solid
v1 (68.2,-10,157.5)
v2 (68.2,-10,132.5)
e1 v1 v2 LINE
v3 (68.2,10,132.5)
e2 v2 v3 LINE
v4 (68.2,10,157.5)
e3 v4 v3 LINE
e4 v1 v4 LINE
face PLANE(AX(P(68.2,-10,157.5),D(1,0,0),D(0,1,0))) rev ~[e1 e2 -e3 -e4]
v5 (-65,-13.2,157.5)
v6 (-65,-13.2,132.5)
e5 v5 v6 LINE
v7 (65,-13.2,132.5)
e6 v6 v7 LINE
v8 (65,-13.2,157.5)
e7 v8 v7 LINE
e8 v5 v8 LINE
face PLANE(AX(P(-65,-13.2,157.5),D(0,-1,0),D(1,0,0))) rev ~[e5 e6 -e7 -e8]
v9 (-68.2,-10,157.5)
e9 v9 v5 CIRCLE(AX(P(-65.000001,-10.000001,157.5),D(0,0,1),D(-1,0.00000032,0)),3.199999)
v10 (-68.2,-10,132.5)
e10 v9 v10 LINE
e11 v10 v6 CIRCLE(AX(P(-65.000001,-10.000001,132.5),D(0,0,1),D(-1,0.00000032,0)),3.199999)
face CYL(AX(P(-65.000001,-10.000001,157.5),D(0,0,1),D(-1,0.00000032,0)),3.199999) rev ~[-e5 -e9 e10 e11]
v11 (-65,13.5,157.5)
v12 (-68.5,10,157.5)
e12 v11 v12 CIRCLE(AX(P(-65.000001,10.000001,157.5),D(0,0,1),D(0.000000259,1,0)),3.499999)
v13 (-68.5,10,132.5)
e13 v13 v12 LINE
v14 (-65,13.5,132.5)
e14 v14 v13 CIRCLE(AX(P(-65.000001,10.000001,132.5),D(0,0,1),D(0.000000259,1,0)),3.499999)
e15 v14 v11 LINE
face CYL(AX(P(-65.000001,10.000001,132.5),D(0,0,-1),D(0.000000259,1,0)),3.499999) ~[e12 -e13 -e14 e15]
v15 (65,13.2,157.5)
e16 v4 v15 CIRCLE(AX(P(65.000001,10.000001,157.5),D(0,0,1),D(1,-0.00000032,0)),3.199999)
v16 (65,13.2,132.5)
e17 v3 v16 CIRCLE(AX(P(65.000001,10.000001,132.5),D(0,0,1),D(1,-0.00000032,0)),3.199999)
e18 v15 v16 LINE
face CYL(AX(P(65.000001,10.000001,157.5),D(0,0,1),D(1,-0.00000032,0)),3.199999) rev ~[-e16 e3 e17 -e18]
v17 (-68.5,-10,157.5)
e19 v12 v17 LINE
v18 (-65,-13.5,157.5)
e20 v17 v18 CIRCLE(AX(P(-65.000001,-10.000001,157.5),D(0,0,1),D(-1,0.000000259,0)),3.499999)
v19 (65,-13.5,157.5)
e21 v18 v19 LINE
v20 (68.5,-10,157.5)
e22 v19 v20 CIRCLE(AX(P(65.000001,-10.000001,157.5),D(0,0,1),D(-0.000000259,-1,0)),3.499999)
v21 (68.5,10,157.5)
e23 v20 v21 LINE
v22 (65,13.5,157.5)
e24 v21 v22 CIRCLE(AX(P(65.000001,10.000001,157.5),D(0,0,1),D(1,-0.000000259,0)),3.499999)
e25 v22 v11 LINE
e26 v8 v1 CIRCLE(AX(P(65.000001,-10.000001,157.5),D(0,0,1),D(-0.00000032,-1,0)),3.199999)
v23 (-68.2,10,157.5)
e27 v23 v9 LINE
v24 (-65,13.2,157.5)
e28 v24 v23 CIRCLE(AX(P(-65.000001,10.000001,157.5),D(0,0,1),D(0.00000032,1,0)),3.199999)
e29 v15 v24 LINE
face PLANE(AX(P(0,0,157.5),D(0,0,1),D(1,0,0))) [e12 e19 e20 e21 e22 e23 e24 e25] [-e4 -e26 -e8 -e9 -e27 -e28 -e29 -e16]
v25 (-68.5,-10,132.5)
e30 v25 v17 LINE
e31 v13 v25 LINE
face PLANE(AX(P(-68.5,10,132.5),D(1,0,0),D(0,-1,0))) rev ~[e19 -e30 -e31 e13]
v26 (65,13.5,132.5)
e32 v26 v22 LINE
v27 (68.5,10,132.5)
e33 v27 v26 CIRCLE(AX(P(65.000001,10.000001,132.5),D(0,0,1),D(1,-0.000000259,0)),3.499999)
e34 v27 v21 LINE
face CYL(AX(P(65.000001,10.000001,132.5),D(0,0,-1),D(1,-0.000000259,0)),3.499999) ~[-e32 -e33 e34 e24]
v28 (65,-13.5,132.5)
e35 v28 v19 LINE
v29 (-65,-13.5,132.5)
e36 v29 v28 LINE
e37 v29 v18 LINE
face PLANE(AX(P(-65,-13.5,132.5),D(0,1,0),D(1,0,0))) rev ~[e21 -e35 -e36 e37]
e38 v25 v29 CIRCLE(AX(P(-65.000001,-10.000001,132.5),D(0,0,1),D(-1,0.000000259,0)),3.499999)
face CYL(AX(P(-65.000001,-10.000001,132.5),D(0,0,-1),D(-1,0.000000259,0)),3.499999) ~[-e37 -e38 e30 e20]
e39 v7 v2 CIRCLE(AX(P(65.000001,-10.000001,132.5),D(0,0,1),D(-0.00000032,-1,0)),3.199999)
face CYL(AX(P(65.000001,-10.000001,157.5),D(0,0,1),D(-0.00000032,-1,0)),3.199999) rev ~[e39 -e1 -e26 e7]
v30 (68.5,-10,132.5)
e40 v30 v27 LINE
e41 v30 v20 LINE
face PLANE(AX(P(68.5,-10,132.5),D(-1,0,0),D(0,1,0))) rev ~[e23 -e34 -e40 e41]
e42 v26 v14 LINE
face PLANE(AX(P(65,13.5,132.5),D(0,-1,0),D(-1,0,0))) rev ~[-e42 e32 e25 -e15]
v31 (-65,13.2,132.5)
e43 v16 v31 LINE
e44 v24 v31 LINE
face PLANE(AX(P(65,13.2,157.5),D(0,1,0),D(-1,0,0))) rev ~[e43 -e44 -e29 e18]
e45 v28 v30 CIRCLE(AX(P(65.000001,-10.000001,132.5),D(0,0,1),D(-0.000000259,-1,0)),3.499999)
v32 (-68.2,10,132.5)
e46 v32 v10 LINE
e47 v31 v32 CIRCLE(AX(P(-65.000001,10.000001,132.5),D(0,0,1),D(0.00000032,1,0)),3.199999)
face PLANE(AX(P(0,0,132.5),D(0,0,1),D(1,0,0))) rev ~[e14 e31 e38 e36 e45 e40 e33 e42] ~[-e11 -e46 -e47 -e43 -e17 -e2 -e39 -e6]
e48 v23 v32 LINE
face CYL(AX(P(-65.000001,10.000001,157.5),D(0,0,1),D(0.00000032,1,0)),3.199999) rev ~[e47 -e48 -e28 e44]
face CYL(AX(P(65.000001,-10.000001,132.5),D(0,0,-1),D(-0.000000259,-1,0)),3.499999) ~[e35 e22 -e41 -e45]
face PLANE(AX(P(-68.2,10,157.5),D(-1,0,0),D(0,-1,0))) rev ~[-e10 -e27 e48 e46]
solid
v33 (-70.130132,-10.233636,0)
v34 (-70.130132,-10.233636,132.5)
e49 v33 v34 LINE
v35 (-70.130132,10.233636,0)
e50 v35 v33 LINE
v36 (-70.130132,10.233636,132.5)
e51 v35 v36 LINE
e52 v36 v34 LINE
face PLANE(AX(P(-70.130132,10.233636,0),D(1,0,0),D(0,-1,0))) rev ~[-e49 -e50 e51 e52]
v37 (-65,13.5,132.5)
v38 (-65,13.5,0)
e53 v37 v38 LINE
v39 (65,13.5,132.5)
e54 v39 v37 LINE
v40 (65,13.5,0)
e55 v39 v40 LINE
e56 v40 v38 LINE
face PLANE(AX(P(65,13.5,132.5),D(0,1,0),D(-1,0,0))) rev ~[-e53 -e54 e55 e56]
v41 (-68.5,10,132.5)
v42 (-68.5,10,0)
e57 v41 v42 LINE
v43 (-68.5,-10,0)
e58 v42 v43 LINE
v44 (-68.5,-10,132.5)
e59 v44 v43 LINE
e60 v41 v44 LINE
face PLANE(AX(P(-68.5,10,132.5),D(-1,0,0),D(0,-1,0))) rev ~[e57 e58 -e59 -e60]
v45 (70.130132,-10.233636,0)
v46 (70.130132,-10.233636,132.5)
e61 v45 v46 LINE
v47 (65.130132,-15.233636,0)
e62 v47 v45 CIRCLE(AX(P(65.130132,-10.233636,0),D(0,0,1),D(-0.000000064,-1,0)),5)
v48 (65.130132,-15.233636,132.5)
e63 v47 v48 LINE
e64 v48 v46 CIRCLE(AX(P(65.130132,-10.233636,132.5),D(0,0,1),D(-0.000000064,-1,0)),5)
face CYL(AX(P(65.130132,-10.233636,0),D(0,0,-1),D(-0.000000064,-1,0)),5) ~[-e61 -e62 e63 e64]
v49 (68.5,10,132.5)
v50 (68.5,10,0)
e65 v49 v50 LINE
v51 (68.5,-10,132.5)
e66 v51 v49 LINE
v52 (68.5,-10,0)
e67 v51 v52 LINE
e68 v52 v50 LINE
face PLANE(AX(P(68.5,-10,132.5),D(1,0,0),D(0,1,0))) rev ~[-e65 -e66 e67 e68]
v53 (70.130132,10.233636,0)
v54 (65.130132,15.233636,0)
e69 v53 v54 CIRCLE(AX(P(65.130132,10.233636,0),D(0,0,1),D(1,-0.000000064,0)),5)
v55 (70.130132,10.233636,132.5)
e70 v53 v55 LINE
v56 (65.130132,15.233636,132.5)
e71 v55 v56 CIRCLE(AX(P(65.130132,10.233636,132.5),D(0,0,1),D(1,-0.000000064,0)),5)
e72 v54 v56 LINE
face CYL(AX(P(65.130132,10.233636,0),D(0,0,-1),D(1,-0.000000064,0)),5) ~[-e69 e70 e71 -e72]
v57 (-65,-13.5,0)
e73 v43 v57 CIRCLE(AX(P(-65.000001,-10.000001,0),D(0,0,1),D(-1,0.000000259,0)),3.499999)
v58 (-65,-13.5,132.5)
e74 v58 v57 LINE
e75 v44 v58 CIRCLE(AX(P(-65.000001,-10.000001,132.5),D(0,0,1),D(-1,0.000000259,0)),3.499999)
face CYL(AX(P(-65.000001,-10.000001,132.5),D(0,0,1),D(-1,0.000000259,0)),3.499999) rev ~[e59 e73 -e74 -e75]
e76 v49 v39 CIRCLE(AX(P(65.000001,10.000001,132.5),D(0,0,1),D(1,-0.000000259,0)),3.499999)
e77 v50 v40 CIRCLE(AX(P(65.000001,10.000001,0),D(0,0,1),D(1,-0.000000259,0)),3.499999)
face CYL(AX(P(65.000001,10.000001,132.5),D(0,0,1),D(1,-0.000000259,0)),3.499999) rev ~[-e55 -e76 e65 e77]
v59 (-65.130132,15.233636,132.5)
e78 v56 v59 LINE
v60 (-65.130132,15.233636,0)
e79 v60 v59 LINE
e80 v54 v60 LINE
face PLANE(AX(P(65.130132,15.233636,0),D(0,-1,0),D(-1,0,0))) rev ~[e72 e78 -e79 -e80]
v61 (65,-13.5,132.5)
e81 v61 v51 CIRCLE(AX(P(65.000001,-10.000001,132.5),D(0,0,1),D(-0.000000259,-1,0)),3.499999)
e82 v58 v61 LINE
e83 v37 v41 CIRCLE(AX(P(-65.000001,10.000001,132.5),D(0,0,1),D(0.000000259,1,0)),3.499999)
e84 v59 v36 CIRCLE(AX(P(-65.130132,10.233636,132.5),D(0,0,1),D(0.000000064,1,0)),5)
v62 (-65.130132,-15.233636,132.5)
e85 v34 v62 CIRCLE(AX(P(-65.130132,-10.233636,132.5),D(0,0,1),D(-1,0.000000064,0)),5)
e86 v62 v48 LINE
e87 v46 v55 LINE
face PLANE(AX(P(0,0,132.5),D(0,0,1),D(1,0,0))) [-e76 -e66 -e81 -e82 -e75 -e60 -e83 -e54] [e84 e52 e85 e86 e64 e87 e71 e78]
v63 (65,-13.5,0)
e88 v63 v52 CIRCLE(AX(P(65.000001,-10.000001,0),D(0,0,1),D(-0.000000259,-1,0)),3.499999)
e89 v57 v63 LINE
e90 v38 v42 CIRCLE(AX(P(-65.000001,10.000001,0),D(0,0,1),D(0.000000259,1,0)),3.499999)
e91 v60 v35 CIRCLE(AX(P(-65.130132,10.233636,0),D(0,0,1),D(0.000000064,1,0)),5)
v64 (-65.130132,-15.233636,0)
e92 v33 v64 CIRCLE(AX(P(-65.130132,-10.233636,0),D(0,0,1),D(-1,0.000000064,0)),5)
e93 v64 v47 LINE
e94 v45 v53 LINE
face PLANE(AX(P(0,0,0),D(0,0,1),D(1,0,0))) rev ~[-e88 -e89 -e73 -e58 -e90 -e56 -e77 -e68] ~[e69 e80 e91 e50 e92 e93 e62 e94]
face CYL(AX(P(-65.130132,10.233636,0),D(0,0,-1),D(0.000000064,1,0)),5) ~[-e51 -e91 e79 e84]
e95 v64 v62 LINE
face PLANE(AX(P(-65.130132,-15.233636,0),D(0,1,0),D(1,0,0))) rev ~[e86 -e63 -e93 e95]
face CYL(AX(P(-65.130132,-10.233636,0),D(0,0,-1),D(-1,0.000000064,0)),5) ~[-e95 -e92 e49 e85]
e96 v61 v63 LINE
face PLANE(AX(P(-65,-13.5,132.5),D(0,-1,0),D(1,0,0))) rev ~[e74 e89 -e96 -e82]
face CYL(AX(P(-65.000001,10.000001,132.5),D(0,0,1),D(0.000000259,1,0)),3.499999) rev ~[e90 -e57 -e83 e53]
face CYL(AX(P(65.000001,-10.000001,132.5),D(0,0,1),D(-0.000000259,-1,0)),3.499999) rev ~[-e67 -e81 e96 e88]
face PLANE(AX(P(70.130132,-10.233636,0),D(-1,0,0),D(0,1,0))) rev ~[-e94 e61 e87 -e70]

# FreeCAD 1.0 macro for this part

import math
import FreeCAD as App
import Part
import Sketcher

doc = App.newDocument("Part")
body = doc.addObject("PartDesign::Body", "Body")

# Sketch on XY plane
sketch1 = doc.addObject("Sketcher::SketchObject", "Sketch")
body.addObject(sketch1)
sketch1.AttachmentSupport = (doc.XY_Plane, [""])
sketch1.MapMode = "FlatFace"
sketch1.addGeometry(Part.ArcOfCircle(Part.Circle(App.Vector(65.130132, 10.233636, 0), App.Vector(0, 0, 1), 5), math.radians(-0.000004), math.radians(90.000004)), False)
sketch1.addGeometry(Part.LineSegment(App.Vector(65.130132, 15.233636, 0), App.Vector(-65.130132, 15.233636, 0)), False)
sketch1.addGeometry(Part.ArcOfCircle(Part.Circle(App.Vector(-65.130132, 10.233636, 0), App.Vector(0, 0, 1), 5), math.radians(89.999996), math.radians(180.000004)), False)
sketch1.addGeometry(Part.LineSegment(App.Vector(-70.130132, 10.233636, 0), App.Vector(-70.130132, -10.233636, 0)), False)
sketch1.addGeometry(Part.ArcOfCircle(Part.Circle(App.Vector(-65.130132, -10.233636, 0), App.Vector(0, 0, 1), 5), math.radians(179.999996), math.radians(270.000004)), False)
sketch1.addGeometry(Part.LineSegment(App.Vector(-65.130132, -15.233636, 0), App.Vector(65.130132, -15.233636, 0)), False)
sketch1.addGeometry(Part.ArcOfCircle(Part.Circle(App.Vector(65.130132, -10.233636, 0), App.Vector(0, 0, 1), 5), math.radians(-90.000004), math.radians(0.000004)), False)
sketch1.addGeometry(Part.LineSegment(App.Vector(70.130132, -10.233636, 0), App.Vector(70.130132, 10.233636, 0)), False)
sketch1.addConstraint(Sketcher.Constraint("Tangent", 0, 2, 1, 1))
sketch1.addConstraint(Sketcher.Constraint("Tangent", 1, 2, 2, 1))
sketch1.addConstraint(Sketcher.Constraint("Tangent", 2, 2, 3, 1))
sketch1.addConstraint(Sketcher.Constraint("Tangent", 3, 2, 4, 1))
sketch1.addConstraint(Sketcher.Constraint("Tangent", 4, 2, 5, 1))
sketch1.addConstraint(Sketcher.Constraint("Tangent", 5, 2, 6, 1))
sketch1.addConstraint(Sketcher.Constraint("Tangent", 6, 2, 7, 1))
sketch1.addConstraint(Sketcher.Constraint("Tangent", 7, 2, 0, 1))
sketch1.addConstraint(Sketcher.Constraint("Horizontal", 1))
sketch1.addConstraint(Sketcher.Constraint("Vertical", 3))
sketch1.addConstraint(Sketcher.Constraint("Horizontal", 5))
sketch1.addConstraint(Sketcher.Constraint("Vertical", 7))
sketch1.addConstraint(Sketcher.Constraint("Equal", 0, 2))
sketch1.addConstraint(Sketcher.Constraint("Equal", 2, 4))
sketch1.addConstraint(Sketcher.Constraint("Equal", 4, 6))
sketch1.addConstraint(Sketcher.Constraint("Symmetric", 0, 3, 4, 3, -1, 1))
sketch1.addConstraint(Sketcher.Constraint("Radius", 0, 5.0))
sketch1.addConstraint(Sketcher.Constraint("DistanceX", 1, 2, 1, 1, 130.260264))
sketch1.addConstraint(Sketcher.Constraint("DistanceY", 3, 2, 3, 1, 20.467272))
pad1 = doc.addObject("PartDesign::Pad", "Pad")
body.addObject(pad1)
pad1.Profile = sketch1
pad1.Length = 132.5

# Sketch on XY plane
sketch2 = doc.addObject("Sketcher::SketchObject", "Sketch001")
body.addObject(sketch2)
sketch2.AttachmentSupport = (doc.XY_Plane, [""])
sketch2.MapMode = "FlatFace"
sketch2.AttachmentOffset = App.Placement(App.Vector(0, 0, 132.5), App.Rotation())
sketch2.addGeometry(Part.LineSegment(App.Vector(65, 13.5, 0), App.Vector(-65, 13.5, 0)), False)
sketch2.addGeometry(Part.ArcOfCircle(Part.Circle(App.Vector(-65.000001, 10.000001, 0), App.Vector(0, 0, 1), 3.499999), math.radians(89.999985), math.radians(180.000015)), False)
sketch2.addGeometry(Part.LineSegment(App.Vector(-68.5, 10, 0), App.Vector(-68.5, -10, 0)), False)
sketch2.addGeometry(Part.ArcOfCircle(Part.Circle(App.Vector(-65.000001, -10.000001, 0), App.Vector(0, 0, 1), 3.499999), math.radians(179.999985), math.radians(270.000015)), False)
sketch2.addGeometry(Part.LineSegment(App.Vector(-65, -13.5, 0), App.Vector(65, -13.5, 0)), False)
sketch2.addGeometry(Part.ArcOfCircle(Part.Circle(App.Vector(65.000001, -10.000001, 0), App.Vector(0, 0, 1), 3.499999), math.radians(-90.000015), math.radians(0.000015)), False)
sketch2.addGeometry(Part.LineSegment(App.Vector(68.5, -10, 0), App.Vector(68.5, 10, 0)), False)
sketch2.addGeometry(Part.ArcOfCircle(Part.Circle(App.Vector(65.000001, 10.000001, 0), App.Vector(0, 0, 1), 3.499999), math.radians(-0.000015), math.radians(90.000015)), False)
sketch2.addConstraint(Sketcher.Constraint("Tangent", 0, 2, 1, 1))
sketch2.addConstraint(Sketcher.Constraint("Tangent", 1, 2, 2, 1))
sketch2.addConstraint(Sketcher.Constraint("Tangent", 2, 2, 3, 1))
sketch2.addConstraint(Sketcher.Constraint("Tangent", 3, 2, 4, 1))
sketch2.addConstraint(Sketcher.Constraint("Tangent", 4, 2, 5, 1))
sketch2.addConstraint(Sketcher.Constraint("Tangent", 5, 2, 6, 1))
sketch2.addConstraint(Sketcher.Constraint("Tangent", 6, 2, 7, 1))
sketch2.addConstraint(Sketcher.Constraint("Tangent", 7, 2, 0, 1))
sketch2.addConstraint(Sketcher.Constraint("Horizontal", 0))
sketch2.addConstraint(Sketcher.Constraint("Vertical", 2))
sketch2.addConstraint(Sketcher.Constraint("Horizontal", 4))
sketch2.addConstraint(Sketcher.Constraint("Vertical", 6))
sketch2.addConstraint(Sketcher.Constraint("Equal", 1, 3))
sketch2.addConstraint(Sketcher.Constraint("Equal", 3, 5))
sketch2.addConstraint(Sketcher.Constraint("Equal", 5, 7))
sketch2.addConstraint(Sketcher.Constraint("Symmetric", 1, 3, 5, 3, -1, 1))
sketch2.addConstraint(Sketcher.Constraint("Radius", 1, 3.499999))
sketch2.addConstraint(Sketcher.Constraint("DistanceX", 0, 2, 0, 1, 130.0))
sketch2.addConstraint(Sketcher.Constraint("DistanceY", 2, 2, 2, 1, 20.0))
pocket1 = doc.addObject("PartDesign::Pocket", "Pocket")
body.addObject(pocket1)
pocket1.Profile = sketch2
pocket1.Type = "ThroughAll"
body2 = doc.addObject("PartDesign::Body", "Body001")

# Sketch on XY plane
sketch3 = doc.addObject("Sketcher::SketchObject", "Sketch002")
body2.addObject(sketch3)
sketch3.AttachmentSupport = (doc.getObject("XY_Plane001"), [""])
sketch3.MapMode = "FlatFace"
sketch3.AttachmentOffset = App.Placement(App.Vector(0, 0, 132.5), App.Rotation())
sketch3.addGeometry(Part.LineSegment(App.Vector(65, 13.5, 0), App.Vector(-65, 13.5, 0)), False)
sketch3.addGeometry(Part.ArcOfCircle(Part.Circle(App.Vector(-65.000001, 10.000001, 0), App.Vector(0, 0, 1), 3.499999), math.radians(89.999985), math.radians(180.000015)), False)
sketch3.addGeometry(Part.LineSegment(App.Vector(-68.5, 10, 0), App.Vector(-68.5, -10, 0)), False)
sketch3.addGeometry(Part.ArcOfCircle(Part.Circle(App.Vector(-65.000001, -10.000001, 0), App.Vector(0, 0, 1), 3.499999), math.radians(179.999985), math.radians(270.000015)), False)
sketch3.addGeometry(Part.LineSegment(App.Vector(-65, -13.5, 0), App.Vector(65, -13.5, 0)), False)
sketch3.addGeometry(Part.ArcOfCircle(Part.Circle(App.Vector(65.000001, -10.000001, 0), App.Vector(0, 0, 1), 3.499999), math.radians(-90.000015), math.radians(0.000015)), False)
sketch3.addGeometry(Part.LineSegment(App.Vector(68.5, -10, 0), App.Vector(68.5, 10, 0)), False)
sketch3.addGeometry(Part.ArcOfCircle(Part.Circle(App.Vector(65.000001, 10.000001, 0), App.Vector(0, 0, 1), 3.499999), math.radians(-0.000015), math.radians(90.000015)), False)
sketch3.addConstraint(Sketcher.Constraint("Tangent", 0, 2, 1, 1))
sketch3.addConstraint(Sketcher.Constraint("Tangent", 1, 2, 2, 1))
sketch3.addConstraint(Sketcher.Constraint("Tangent", 2, 2, 3, 1))
sketch3.addConstraint(Sketcher.Constraint("Tangent", 3, 2, 4, 1))
sketch3.addConstraint(Sketcher.Constraint("Tangent", 4, 2, 5, 1))
sketch3.addConstraint(Sketcher.Constraint("Tangent", 5, 2, 6, 1))
sketch3.addConstraint(Sketcher.Constraint("Tangent", 6, 2, 7, 1))
sketch3.addConstraint(Sketcher.Constraint("Tangent", 7, 2, 0, 1))
sketch3.addConstraint(Sketcher.Constraint("Horizontal", 0))
sketch3.addConstraint(Sketcher.Constraint("Vertical", 2))
sketch3.addConstraint(Sketcher.Constraint("Horizontal", 4))
sketch3.addConstraint(Sketcher.Constraint("Vertical", 6))
sketch3.addConstraint(Sketcher.Constraint("Equal", 1, 3))
sketch3.addConstraint(Sketcher.Constraint("Equal", 3, 5))
sketch3.addConstraint(Sketcher.Constraint("Equal", 5, 7))
sketch3.addConstraint(Sketcher.Constraint("Symmetric", 1, 3, 5, 3, -1, 1))
sketch3.addConstraint(Sketcher.Constraint("Radius", 1, 3.499999))
sketch3.addConstraint(Sketcher.Constraint("DistanceX", 0, 2, 0, 1, 130.0))
sketch3.addConstraint(Sketcher.Constraint("DistanceY", 2, 2, 2, 1, 20.0))
pad2 = doc.addObject("PartDesign::Pad", "Pad001")
body2.addObject(pad2)
pad2.Profile = sketch3
pad2.Length = 25

# Sketch on XY plane
sketch4 = doc.addObject("Sketcher::SketchObject", "Sketch003")
body2.addObject(sketch4)
sketch4.AttachmentSupport = (doc.getObject("XY_Plane001"), [""])
sketch4.MapMode = "FlatFace"
sketch4.AttachmentOffset = App.Placement(App.Vector(0, 0, 157.5), App.Rotation())
sketch4.addGeometry(Part.ArcOfCircle(Part.Circle(App.Vector(-65.000001, 10.000001, 0), App.Vector(0, 0, 1), 3.199999), math.radians(89.999982), math.radians(180.000018)), False)
sketch4.addGeometry(Part.LineSegment(App.Vector(-68.2, 10, 0), App.Vector(-68.2, -10, 0)), False)
sketch4.addGeometry(Part.ArcOfCircle(Part.Circle(App.Vector(-65.000001, -10.000001, 0), App.Vector(0, 0, 1), 3.199999), math.radians(179.999982), math.radians(270.000018)), False)
sketch4.addGeometry(Part.LineSegment(App.Vector(-65, -13.2, 0), App.Vector(65, -13.2, 0)), False)
sketch4.addGeometry(Part.ArcOfCircle(Part.Circle(App.Vector(65.000001, -10.000001, 0), App.Vector(0, 0, 1), 3.199999), math.radians(-90.000018), math.radians(0.000018)), False)
sketch4.addGeometry(Part.LineSegment(App.Vector(68.2, -10, 0), App.Vector(68.2, 10, 0)), False)
sketch4.addGeometry(Part.ArcOfCircle(Part.Circle(App.Vector(65.000001, 10.000001, 0), App.Vector(0, 0, 1), 3.199999), math.radians(-0.000018), math.radians(90.000018)), False)
sketch4.addGeometry(Part.LineSegment(App.Vector(65, 13.2, 0), App.Vector(-65, 13.2, 0)), False)
sketch4.addConstraint(Sketcher.Constraint("Tangent", 0, 2, 1, 1))
sketch4.addConstraint(Sketcher.Constraint("Tangent", 1, 2, 2, 1))
sketch4.addConstraint(Sketcher.Constraint("Tangent", 2, 2, 3, 1))
sketch4.addConstraint(Sketcher.Constraint("Tangent", 3, 2, 4, 1))
sketch4.addConstraint(Sketcher.Constraint("Tangent", 4, 2, 5, 1))
sketch4.addConstraint(Sketcher.Constraint("Tangent", 5, 2, 6, 1))
sketch4.addConstraint(Sketcher.Constraint("Tangent", 6, 2, 7, 1))
sketch4.addConstraint(Sketcher.Constraint("Tangent", 7, 2, 0, 1))
sketch4.addConstraint(Sketcher.Constraint("Vertical", 1))
sketch4.addConstraint(Sketcher.Constraint("Horizontal", 3))
sketch4.addConstraint(Sketcher.Constraint("Vertical", 5))
sketch4.addConstraint(Sketcher.Constraint("Horizontal", 7))
sketch4.addConstraint(Sketcher.Constraint("Equal", 0, 2))
sketch4.addConstraint(Sketcher.Constraint("Equal", 2, 4))
sketch4.addConstraint(Sketcher.Constraint("Equal", 4, 6))
sketch4.addConstraint(Sketcher.Constraint("Symmetric", 0, 3, 4, 3, -1, 1))
sketch4.addConstraint(Sketcher.Constraint("Radius", 0, 3.199999))
sketch4.addConstraint(Sketcher.Constraint("DistanceX", 3, 1, 3, 2, 130.0))
sketch4.addConstraint(Sketcher.Constraint("DistanceY", 1, 2, 1, 1, 20.0))
pocket2 = doc.addObject("PartDesign::Pocket", "Pocket001")
body2.addObject(pocket2)
pocket2.Profile = sketch4
pocket2.Type = "ThroughAll"

doc.recompute()
